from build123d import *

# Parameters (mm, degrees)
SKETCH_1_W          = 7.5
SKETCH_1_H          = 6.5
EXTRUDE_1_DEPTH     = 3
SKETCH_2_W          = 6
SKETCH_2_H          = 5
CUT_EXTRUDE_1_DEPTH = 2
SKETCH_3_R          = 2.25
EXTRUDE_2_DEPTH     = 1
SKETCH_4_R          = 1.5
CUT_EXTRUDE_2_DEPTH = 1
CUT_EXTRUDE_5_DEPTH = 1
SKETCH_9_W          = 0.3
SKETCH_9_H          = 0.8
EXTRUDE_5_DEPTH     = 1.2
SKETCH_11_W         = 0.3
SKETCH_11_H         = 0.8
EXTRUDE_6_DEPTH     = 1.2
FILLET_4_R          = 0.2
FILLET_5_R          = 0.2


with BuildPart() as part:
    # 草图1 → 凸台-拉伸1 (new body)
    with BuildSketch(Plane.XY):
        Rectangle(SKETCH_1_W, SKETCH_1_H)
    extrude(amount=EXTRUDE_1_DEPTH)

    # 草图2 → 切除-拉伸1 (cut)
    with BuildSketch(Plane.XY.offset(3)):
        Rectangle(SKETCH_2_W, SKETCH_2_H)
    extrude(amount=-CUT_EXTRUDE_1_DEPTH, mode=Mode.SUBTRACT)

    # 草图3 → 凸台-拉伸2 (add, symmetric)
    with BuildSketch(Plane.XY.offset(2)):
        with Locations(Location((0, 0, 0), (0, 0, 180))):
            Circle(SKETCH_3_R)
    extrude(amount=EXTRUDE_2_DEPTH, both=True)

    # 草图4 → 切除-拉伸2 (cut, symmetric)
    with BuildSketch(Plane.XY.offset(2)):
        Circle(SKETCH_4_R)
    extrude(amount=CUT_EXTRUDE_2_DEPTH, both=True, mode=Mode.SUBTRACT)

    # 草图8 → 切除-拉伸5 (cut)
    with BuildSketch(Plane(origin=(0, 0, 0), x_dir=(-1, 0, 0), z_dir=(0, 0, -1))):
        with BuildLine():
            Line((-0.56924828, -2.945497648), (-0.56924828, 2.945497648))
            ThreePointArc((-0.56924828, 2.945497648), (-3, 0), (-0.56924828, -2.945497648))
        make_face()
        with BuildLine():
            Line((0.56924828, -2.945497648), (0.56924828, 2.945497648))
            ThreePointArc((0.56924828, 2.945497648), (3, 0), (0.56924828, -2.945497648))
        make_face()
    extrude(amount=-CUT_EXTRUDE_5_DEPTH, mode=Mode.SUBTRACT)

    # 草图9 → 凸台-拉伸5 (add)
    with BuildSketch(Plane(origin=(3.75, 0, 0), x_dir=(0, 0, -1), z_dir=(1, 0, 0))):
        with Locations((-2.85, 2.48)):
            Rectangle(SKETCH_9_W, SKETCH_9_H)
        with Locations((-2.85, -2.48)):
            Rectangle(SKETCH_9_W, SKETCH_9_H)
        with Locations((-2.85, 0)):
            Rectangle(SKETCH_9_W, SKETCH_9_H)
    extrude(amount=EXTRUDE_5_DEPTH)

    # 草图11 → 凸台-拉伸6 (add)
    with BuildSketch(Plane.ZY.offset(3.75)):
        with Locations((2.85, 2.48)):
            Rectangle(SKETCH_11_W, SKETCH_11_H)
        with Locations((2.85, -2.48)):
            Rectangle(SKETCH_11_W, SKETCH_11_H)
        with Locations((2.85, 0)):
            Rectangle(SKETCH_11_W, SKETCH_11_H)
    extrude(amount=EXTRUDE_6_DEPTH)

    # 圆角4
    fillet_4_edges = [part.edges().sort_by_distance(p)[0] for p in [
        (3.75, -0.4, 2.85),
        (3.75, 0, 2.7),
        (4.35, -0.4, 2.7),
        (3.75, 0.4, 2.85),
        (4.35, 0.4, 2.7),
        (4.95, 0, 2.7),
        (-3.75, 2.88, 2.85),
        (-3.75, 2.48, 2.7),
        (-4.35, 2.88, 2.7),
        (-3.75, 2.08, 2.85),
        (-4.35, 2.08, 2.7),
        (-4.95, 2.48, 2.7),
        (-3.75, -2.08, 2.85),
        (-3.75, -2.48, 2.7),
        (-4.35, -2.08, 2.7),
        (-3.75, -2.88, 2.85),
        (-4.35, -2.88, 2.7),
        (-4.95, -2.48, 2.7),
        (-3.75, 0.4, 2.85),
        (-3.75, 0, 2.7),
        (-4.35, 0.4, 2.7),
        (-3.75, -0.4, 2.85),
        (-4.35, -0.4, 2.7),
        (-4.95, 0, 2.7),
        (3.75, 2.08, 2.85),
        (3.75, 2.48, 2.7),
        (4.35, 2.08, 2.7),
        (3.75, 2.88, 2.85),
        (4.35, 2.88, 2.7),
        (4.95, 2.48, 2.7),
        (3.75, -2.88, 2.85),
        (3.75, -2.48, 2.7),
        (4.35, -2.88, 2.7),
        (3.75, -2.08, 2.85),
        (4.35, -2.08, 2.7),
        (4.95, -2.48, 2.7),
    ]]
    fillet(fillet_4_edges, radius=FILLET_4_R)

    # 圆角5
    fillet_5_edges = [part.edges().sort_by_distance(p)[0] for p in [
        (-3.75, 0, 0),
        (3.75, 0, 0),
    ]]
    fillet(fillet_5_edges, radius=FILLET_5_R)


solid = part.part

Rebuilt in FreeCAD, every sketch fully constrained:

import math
import FreeCAD as App
import Part
import Sketcher
from FreeCAD import Vector
Q = App.Units.Quantity


def edges_at(feature, points):
    """Names of the edges that pass closest to the given points."""
    edges = feature.Shape.Edges
    near = lambda p: min(range(len(edges)), key=lambda i: edges[i].distToShape(Part.Vertex(*p))[0])
    return sorted({f"Edge{near(p) + 1}" for p in points})


def add_polygon(sketch, points):
    """Adds a closed chain of lines whose ends are joined by coincident constraints."""
    first, n = sketch.GeometryCount, len(points)
    for a, b in zip(points, points[1:] + points[:1]):
        sketch.addGeometry(Part.LineSegment(App.Vector(*a, 0), App.Vector(*b, 0)), False)
    for i in range(n):
        sketch.addConstraint(Sketcher.Constraint("Coincident", first + i, 2, first + (i + 1) % n, 1))

doc = App.newDocument("Part")
body = doc.addObject("PartDesign::Body", "Body")

# Sketch on XY plane
sketch1 = body.newObject("Sketcher::SketchObject", "Sketch")
sketch1.AttachmentSupport = (doc.getObject("XY_Plane"), [""])
sketch1.MapMode = "FlatFace"
add_polygon(sketch1, [(-4, 3), (-4, -3), (4, -3), (4, 3)])  # lines 0-3
sketch1.addConstraint(Sketcher.Constraint("Vertical", 0))
sketch1.addConstraint(Sketcher.Constraint("Horizontal", 1))
sketch1.addConstraint(Sketcher.Constraint("Vertical", 2))
sketch1.addConstraint(Sketcher.Constraint("Horizontal", 3))
sketch1.addConstraint(Sketcher.Constraint("Symmetric", 0, 2, 2, 2, -1, 1))
sketch1.addConstraint(Sketcher.Constraint("DistanceX", 1, 1, 1, 2, Q("7.5 mm")))
sketch1.addConstraint(Sketcher.Constraint("DistanceY", 0, 2, 0, 1, Q("6.5 mm")))
pad1 = body.newObject("PartDesign::Pad", "Pad")
pad1.Profile = sketch1
pad1.Length = 3

# Sketch on XY plane
sketch2 = body.newObject("Sketcher::SketchObject", "Sketch001")
sketch2.AttachmentSupport = (doc.getObject("XY_Plane"), [""])
sketch2.MapMode = "FlatFace"
sketch2.AttachmentOffset = App.Placement(Vector(0, 0, 3), App.Rotation())
add_polygon(sketch2, [(-3, 2), (-3, -2), (3, -2), (3, 2)])  # lines 0-3
sketch2.addConstraint(Sketcher.Constraint("Vertical", 0))
sketch2.addConstraint(Sketcher.Constraint("Horizontal", 1))
sketch2.addConstraint(Sketcher.Constraint("Vertical", 2))
sketch2.addConstraint(Sketcher.Constraint("Horizontal", 3))
sketch2.addConstraint(Sketcher.Constraint("Symmetric", 0, 2, 2, 2, -1, 1))
sketch2.addConstraint(Sketcher.Constraint("DistanceX", 1, 1, 1, 2, Q("6 mm")))
sketch2.addConstraint(Sketcher.Constraint("DistanceY", 0, 2, 0, 1, Q("5 mm")))
pocket1 = body.newObject("PartDesign::Pocket", "Pocket")
pocket1.Profile = sketch2
pocket1.Length = 2

# Sketch on XY plane
sketch3 = body.newObject("Sketcher::SketchObject", "Sketch002")
sketch3.AttachmentSupport = (doc.getObject("XY_Plane"), [""])
sketch3.MapMode = "FlatFace"
sketch3.AttachmentOffset = App.Placement(Vector(0, 0, 2), App.Rotation())
sketch3.addGeometry(Part.Circle(Vector(0, 0, 0), Vector(0, 0, 1), 2.2), False)
sketch3.addConstraint(Sketcher.Constraint("Coincident", 0, 3, -1, 1))
sketch3.addConstraint(Sketcher.Constraint("Diameter", 0, Q("4.5 mm")))
pad2 = body.newObject("PartDesign::Pad", "Pad001")
pad2.Profile = sketch3
pad2.Length = 2
pad2.Midplane = True

# Sketch on XY plane
sketch4 = body.newObject("Sketcher::SketchObject", "Sketch003")
sketch4.AttachmentSupport = (doc.getObject("XY_Plane"), [""])
sketch4.MapMode = "FlatFace"
sketch4.AttachmentOffset = App.Placement(Vector(0, 0, 2), App.Rotation())
sketch4.addGeometry(Part.Circle(Vector(0, 0, 0), Vector(0, 0, 1), 1.5), False)
sketch4.addConstraint(Sketcher.Constraint("Coincident", 0, 3, -1, 1))
sketch4.addConstraint(Sketcher.Constraint("Diameter", 0, Q("3 mm")))
pocket2 = body.newObject("PartDesign::Pocket", "Pocket001")
pocket2.Profile = sketch4
pocket2.Length = 2
pocket2.Midplane = True

# Sketch on XY plane
sketch5 = body.newObject("Sketcher::SketchObject", "Sketch004")
sketch5.AttachmentSupport = (doc.getObject("XY_Plane"), [""])
sketch5.MapMode = "FlatFace"
sketch5.addGeometry(Part.LineSegment(Vector(0.6, -2.9, 0), Vector(0.6, 2.9, 0)), False)
sketch5.addGeometry(Part.ArcOfCircle(Part.Circle(Vector(0, 0, 0), Vector(0, 0, 1), 3), math.radians(-79), math.radians(79)), False)
sketch5.addGeometry(Part.LineSegment(Vector(-0.6, 2.9, 0), Vector(-0.6, -2.9, 0)), False)
sketch5.addGeometry(Part.ArcOfCircle(Part.Circle(Vector(0, 0, 0), Vector(0, 0, 1), 3), math.radians(101), math.radians(259)), False)
sketch5.addConstraint(Sketcher.Constraint("Coincident", 0, 1, 1, 1))
sketch5.addConstraint(Sketcher.Constraint("Coincident", 1, 2, 0, 2))
sketch5.addConstraint(Sketcher.Constraint("Coincident", 2, 1, 3, 1))
sketch5.addConstraint(Sketcher.Constraint("Coincident", 3, 2, 2, 2))
sketch5.addConstraint(Sketcher.Constraint("Vertical", 0))
sketch5.addConstraint(Sketcher.Constraint("Vertical", 2))
sketch5.addConstraint(Sketcher.Constraint("Coincident", 1, 3, -1, 1))
sketch5.addConstraint(Sketcher.Constraint("Coincident", 3, 3, -1, 1))
sketch5.addConstraint(Sketcher.Constraint("Equal", 1, 3))
sketch5.addConstraint(Sketcher.Constraint("Horizontal", 1, 2, 2, 1))
sketch5.addConstraint(Sketcher.Constraint("Radius", 1, Q("3 mm")))
sketch5.addConstraint(Sketcher.Constraint("DistanceY", 0, 1, 0, 2, Q("5.890995 mm")))
pocket3 = body.newObject("PartDesign::Pocket", "Pocket002")
pocket3.Profile = sketch5
pocket3.Length = 1
pocket3.Reversed = True

# Sketch on YZ plane
sketch6 = body.newObject("Sketcher::SketchObject", "Sketch005")
sketch6.AttachmentSupport = (doc.getObject("YZ_Plane"), [""])
sketch6.MapMode = "FlatFace"
sketch6.AttachmentOffset = App.Placement(Vector(0, 0, 3.75), App.Rotation())
add_polygon(sketch6, [(2.88, 3), (2.08, 3), (2.08, 2.7), (2.88, 2.7)])  # lines 0-3
add_polygon(sketch6, [(-2.08, 3), (-2.88, 3), (-2.88, 2.7), (-2.08, 2.7)])  # lines 4-7
add_polygon(sketch6, [(0.4, 3), (-0.4, 3), (-0.4, 2.7), (0.4, 2.7)])  # lines 8-11
sketch6.addConstraint(Sketcher.Constraint("Horizontal", 0))
sketch6.addConstraint(Sketcher.Constraint("Vertical", 1))
sketch6.addConstraint(Sketcher.Constraint("Horizontal", 2))
sketch6.addConstraint(Sketcher.Constraint("Vertical", 3))
sketch6.addConstraint(Sketcher.Constraint("Horizontal", 4))
sketch6.addConstraint(Sketcher.Constraint("Vertical", 5))
sketch6.addConstraint(Sketcher.Constraint("Horizontal", 6))
sketch6.addConstraint(Sketcher.Constraint("Vertical", 7))
sketch6.addConstraint(Sketcher.Constraint("Horizontal", 8))
sketch6.addConstraint(Sketcher.Constraint("Vertical", 9))
sketch6.addConstraint(Sketcher.Constraint("Horizontal", 10))
sketch6.addConstraint(Sketcher.Constraint("Vertical", 11))
sketch6.addConstraint(Sketcher.Constraint("Symmetric", 3, 2, 4, 2, -2))
sketch6.addConstraint(Sketcher.Constraint("Symmetric", 1, 2, 6, 2, -2))
sketch6.addConstraint(Sketcher.Constraint("Horizontal", 7, 2, 8, 2))
sketch6.addConstraint(Sketcher.Constraint("Horizontal", 6, 2, 9, 2))
sketch6.addConstraint(Sketcher.Constraint("Equal", 6, 8))
sketch6.addConstraint(Sketcher.Constraint("DistanceX", 0, 2, 0, 1, Q("0.8 mm")))
sketch6.addConstraint(Sketcher.Constraint("DistanceY", 1, 2, 1, 1, Q("0.3 mm")))
sketch6.addConstraint(Sketcher.Constraint("DistanceY", -1, 1, 0, 2, Q("3 mm")))
sketch6.addConstraint(Sketcher.Constraint("DistanceX", 8, 2, -1, 1, Q("0.4 mm")))
sketch6.addConstraint(Sketcher.Constraint("DistanceX", -1, 1, 0, 2, Q("2.08 mm")))
pad3 = body.newObject("PartDesign::Pad", "Pad002")
pad3.Profile = sketch6
pad3.Length = 1.2

# Sketch on YZ plane
sketch7 = body.newObject("Sketcher::SketchObject", "Sketch006")
sketch7.AttachmentSupport = (doc.getObject("YZ_Plane"), [""])
sketch7.MapMode = "FlatFace"
sketch7.AttachmentOffset = App.Placement(Vector(0, 0, -3.75), App.Rotation())
add_polygon(sketch7, [(2.88, 2.7), (2.08, 2.7), (2.08, 3), (2.88, 3)])  # lines 0-3
add_polygon(sketch7, [(-2.08, 2.7), (-2.88, 2.7), (-2.88, 3), (-2.08, 3)])  # lines 4-7
add_polygon(sketch7, [(0.4, 2.7), (-0.4, 2.7), (-0.4, 3), (0.4, 3)])  # lines 8-11
sketch7.addConstraint(Sketcher.Constraint("Horizontal", 0))
sketch7.addConstraint(Sketcher.Constraint("Vertical", 1))
sketch7.addConstraint(Sketcher.Constraint("Horizontal", 2))
sketch7.addConstraint(Sketcher.Constraint("Vertical", 3))
sketch7.addConstraint(Sketcher.Constraint("Horizontal", 4))
sketch7.addConstraint(Sketcher.Constraint("Vertical", 5))
sketch7.addConstraint(Sketcher.Constraint("Horizontal", 6))
sketch7.addConstraint(Sketcher.Constraint("Vertical", 7))
sketch7.addConstraint(Sketcher.Constraint("Horizontal", 8))
sketch7.addConstraint(Sketcher.Constraint("Vertical", 9))
sketch7.addConstraint(Sketcher.Constraint("Horizontal", 10))
sketch7.addConstraint(Sketcher.Constraint("Vertical", 11))
sketch7.addConstraint(Sketcher.Constraint("Symmetric", 3, 2, 4, 2, -2))
sketch7.addConstraint(Sketcher.Constraint("Symmetric", 1, 2, 6, 2, -2))
sketch7.addConstraint(Sketcher.Constraint("Horizontal", 7, 2, 8, 2))
sketch7.addConstraint(Sketcher.Constraint("Horizontal", 6, 2, 9, 2))
sketch7.addConstraint(Sketcher.Constraint("Equal", 6, 8))
sketch7.addConstraint(Sketcher.Constraint("DistanceX", 0, 2, 0, 1, Q("0.8 mm")))
sketch7.addConstraint(Sketcher.Constraint("DistanceY", 1, 1, 1, 2, Q("0.3 mm")))
sketch7.addConstraint(Sketcher.Constraint("DistanceY", -1, 1, 1, 2, Q("3 mm")))
sketch7.addConstraint(Sketcher.Constraint("DistanceX", 8, 2, -1, 1, Q("0.4 mm")))
sketch7.addConstraint(Sketcher.Constraint("DistanceX", -1, 1, 0, 2, Q("2.08 mm")))
pad4 = body.newObject("PartDesign::Pad", "Pad003")
pad4.Profile = sketch7
pad4.Length = 1.2
pad4.Reversed = True
doc.recompute()

fillet = body.newObject("PartDesign::Fillet", "Fillet")
fillet.Base = (pad4, edges_at(pad4, [
    (3.75, -0.4, 2.85),
    (3.75, 0, 2.7),
    (4.35, -0.4, 2.7),
    (3.75, 0.4, 2.85),
    (4.35, 0.4, 2.7),
    (4.95, 0, 2.7),
    (-3.75, 2.88, 2.85),
    (-3.75, 2.48, 2.7),
    (-4.35, 2.88, 2.7),
    (-3.75, 2.08, 2.85),
    (-4.35, 2.08, 2.7),
    (-4.95, 2.48, 2.7),
    (-3.75, -2.08, 2.85),
    (-3.75, -2.48, 2.7),
    (-4.35, -2.08, 2.7),
    (-3.75, -2.88, 2.85),
    (-4.35, -2.88, 2.7),
    (-4.95, -2.48, 2.7),
    (-3.75, 0.4, 2.85),
    (-3.75, 0, 2.7),
    (-4.35, 0.4, 2.7),
    (-3.75, -0.4, 2.85),
    (-4.35, -0.4, 2.7),
    (-4.95, 0, 2.7),
    (3.75, 2.08, 2.85),
    (3.75, 2.48, 2.7),
    (4.35, 2.08, 2.7),
    (3.75, 2.88, 2.85),
    (4.35, 2.88, 2.7),
    (4.95, 2.48, 2.7),
    (3.75, -2.88, 2.85),
    (3.75, -2.48, 2.7),
    (4.35, -2.88, 2.7),
    (3.75, -2.08, 2.85),
    (4.35, -2.08, 2.7),
    (4.95, -2.48, 2.7),
]))
fillet.Radius = 0.2
doc.recompute()

fillet2 = body.newObject("PartDesign::Fillet", "Fillet001")
fillet2.Base = (fillet, edges_at(fillet, [(-3.75, 0, 0), (3.75, 0, 0)]))
fillet2.Radius = 0.2

doc.recompute()
